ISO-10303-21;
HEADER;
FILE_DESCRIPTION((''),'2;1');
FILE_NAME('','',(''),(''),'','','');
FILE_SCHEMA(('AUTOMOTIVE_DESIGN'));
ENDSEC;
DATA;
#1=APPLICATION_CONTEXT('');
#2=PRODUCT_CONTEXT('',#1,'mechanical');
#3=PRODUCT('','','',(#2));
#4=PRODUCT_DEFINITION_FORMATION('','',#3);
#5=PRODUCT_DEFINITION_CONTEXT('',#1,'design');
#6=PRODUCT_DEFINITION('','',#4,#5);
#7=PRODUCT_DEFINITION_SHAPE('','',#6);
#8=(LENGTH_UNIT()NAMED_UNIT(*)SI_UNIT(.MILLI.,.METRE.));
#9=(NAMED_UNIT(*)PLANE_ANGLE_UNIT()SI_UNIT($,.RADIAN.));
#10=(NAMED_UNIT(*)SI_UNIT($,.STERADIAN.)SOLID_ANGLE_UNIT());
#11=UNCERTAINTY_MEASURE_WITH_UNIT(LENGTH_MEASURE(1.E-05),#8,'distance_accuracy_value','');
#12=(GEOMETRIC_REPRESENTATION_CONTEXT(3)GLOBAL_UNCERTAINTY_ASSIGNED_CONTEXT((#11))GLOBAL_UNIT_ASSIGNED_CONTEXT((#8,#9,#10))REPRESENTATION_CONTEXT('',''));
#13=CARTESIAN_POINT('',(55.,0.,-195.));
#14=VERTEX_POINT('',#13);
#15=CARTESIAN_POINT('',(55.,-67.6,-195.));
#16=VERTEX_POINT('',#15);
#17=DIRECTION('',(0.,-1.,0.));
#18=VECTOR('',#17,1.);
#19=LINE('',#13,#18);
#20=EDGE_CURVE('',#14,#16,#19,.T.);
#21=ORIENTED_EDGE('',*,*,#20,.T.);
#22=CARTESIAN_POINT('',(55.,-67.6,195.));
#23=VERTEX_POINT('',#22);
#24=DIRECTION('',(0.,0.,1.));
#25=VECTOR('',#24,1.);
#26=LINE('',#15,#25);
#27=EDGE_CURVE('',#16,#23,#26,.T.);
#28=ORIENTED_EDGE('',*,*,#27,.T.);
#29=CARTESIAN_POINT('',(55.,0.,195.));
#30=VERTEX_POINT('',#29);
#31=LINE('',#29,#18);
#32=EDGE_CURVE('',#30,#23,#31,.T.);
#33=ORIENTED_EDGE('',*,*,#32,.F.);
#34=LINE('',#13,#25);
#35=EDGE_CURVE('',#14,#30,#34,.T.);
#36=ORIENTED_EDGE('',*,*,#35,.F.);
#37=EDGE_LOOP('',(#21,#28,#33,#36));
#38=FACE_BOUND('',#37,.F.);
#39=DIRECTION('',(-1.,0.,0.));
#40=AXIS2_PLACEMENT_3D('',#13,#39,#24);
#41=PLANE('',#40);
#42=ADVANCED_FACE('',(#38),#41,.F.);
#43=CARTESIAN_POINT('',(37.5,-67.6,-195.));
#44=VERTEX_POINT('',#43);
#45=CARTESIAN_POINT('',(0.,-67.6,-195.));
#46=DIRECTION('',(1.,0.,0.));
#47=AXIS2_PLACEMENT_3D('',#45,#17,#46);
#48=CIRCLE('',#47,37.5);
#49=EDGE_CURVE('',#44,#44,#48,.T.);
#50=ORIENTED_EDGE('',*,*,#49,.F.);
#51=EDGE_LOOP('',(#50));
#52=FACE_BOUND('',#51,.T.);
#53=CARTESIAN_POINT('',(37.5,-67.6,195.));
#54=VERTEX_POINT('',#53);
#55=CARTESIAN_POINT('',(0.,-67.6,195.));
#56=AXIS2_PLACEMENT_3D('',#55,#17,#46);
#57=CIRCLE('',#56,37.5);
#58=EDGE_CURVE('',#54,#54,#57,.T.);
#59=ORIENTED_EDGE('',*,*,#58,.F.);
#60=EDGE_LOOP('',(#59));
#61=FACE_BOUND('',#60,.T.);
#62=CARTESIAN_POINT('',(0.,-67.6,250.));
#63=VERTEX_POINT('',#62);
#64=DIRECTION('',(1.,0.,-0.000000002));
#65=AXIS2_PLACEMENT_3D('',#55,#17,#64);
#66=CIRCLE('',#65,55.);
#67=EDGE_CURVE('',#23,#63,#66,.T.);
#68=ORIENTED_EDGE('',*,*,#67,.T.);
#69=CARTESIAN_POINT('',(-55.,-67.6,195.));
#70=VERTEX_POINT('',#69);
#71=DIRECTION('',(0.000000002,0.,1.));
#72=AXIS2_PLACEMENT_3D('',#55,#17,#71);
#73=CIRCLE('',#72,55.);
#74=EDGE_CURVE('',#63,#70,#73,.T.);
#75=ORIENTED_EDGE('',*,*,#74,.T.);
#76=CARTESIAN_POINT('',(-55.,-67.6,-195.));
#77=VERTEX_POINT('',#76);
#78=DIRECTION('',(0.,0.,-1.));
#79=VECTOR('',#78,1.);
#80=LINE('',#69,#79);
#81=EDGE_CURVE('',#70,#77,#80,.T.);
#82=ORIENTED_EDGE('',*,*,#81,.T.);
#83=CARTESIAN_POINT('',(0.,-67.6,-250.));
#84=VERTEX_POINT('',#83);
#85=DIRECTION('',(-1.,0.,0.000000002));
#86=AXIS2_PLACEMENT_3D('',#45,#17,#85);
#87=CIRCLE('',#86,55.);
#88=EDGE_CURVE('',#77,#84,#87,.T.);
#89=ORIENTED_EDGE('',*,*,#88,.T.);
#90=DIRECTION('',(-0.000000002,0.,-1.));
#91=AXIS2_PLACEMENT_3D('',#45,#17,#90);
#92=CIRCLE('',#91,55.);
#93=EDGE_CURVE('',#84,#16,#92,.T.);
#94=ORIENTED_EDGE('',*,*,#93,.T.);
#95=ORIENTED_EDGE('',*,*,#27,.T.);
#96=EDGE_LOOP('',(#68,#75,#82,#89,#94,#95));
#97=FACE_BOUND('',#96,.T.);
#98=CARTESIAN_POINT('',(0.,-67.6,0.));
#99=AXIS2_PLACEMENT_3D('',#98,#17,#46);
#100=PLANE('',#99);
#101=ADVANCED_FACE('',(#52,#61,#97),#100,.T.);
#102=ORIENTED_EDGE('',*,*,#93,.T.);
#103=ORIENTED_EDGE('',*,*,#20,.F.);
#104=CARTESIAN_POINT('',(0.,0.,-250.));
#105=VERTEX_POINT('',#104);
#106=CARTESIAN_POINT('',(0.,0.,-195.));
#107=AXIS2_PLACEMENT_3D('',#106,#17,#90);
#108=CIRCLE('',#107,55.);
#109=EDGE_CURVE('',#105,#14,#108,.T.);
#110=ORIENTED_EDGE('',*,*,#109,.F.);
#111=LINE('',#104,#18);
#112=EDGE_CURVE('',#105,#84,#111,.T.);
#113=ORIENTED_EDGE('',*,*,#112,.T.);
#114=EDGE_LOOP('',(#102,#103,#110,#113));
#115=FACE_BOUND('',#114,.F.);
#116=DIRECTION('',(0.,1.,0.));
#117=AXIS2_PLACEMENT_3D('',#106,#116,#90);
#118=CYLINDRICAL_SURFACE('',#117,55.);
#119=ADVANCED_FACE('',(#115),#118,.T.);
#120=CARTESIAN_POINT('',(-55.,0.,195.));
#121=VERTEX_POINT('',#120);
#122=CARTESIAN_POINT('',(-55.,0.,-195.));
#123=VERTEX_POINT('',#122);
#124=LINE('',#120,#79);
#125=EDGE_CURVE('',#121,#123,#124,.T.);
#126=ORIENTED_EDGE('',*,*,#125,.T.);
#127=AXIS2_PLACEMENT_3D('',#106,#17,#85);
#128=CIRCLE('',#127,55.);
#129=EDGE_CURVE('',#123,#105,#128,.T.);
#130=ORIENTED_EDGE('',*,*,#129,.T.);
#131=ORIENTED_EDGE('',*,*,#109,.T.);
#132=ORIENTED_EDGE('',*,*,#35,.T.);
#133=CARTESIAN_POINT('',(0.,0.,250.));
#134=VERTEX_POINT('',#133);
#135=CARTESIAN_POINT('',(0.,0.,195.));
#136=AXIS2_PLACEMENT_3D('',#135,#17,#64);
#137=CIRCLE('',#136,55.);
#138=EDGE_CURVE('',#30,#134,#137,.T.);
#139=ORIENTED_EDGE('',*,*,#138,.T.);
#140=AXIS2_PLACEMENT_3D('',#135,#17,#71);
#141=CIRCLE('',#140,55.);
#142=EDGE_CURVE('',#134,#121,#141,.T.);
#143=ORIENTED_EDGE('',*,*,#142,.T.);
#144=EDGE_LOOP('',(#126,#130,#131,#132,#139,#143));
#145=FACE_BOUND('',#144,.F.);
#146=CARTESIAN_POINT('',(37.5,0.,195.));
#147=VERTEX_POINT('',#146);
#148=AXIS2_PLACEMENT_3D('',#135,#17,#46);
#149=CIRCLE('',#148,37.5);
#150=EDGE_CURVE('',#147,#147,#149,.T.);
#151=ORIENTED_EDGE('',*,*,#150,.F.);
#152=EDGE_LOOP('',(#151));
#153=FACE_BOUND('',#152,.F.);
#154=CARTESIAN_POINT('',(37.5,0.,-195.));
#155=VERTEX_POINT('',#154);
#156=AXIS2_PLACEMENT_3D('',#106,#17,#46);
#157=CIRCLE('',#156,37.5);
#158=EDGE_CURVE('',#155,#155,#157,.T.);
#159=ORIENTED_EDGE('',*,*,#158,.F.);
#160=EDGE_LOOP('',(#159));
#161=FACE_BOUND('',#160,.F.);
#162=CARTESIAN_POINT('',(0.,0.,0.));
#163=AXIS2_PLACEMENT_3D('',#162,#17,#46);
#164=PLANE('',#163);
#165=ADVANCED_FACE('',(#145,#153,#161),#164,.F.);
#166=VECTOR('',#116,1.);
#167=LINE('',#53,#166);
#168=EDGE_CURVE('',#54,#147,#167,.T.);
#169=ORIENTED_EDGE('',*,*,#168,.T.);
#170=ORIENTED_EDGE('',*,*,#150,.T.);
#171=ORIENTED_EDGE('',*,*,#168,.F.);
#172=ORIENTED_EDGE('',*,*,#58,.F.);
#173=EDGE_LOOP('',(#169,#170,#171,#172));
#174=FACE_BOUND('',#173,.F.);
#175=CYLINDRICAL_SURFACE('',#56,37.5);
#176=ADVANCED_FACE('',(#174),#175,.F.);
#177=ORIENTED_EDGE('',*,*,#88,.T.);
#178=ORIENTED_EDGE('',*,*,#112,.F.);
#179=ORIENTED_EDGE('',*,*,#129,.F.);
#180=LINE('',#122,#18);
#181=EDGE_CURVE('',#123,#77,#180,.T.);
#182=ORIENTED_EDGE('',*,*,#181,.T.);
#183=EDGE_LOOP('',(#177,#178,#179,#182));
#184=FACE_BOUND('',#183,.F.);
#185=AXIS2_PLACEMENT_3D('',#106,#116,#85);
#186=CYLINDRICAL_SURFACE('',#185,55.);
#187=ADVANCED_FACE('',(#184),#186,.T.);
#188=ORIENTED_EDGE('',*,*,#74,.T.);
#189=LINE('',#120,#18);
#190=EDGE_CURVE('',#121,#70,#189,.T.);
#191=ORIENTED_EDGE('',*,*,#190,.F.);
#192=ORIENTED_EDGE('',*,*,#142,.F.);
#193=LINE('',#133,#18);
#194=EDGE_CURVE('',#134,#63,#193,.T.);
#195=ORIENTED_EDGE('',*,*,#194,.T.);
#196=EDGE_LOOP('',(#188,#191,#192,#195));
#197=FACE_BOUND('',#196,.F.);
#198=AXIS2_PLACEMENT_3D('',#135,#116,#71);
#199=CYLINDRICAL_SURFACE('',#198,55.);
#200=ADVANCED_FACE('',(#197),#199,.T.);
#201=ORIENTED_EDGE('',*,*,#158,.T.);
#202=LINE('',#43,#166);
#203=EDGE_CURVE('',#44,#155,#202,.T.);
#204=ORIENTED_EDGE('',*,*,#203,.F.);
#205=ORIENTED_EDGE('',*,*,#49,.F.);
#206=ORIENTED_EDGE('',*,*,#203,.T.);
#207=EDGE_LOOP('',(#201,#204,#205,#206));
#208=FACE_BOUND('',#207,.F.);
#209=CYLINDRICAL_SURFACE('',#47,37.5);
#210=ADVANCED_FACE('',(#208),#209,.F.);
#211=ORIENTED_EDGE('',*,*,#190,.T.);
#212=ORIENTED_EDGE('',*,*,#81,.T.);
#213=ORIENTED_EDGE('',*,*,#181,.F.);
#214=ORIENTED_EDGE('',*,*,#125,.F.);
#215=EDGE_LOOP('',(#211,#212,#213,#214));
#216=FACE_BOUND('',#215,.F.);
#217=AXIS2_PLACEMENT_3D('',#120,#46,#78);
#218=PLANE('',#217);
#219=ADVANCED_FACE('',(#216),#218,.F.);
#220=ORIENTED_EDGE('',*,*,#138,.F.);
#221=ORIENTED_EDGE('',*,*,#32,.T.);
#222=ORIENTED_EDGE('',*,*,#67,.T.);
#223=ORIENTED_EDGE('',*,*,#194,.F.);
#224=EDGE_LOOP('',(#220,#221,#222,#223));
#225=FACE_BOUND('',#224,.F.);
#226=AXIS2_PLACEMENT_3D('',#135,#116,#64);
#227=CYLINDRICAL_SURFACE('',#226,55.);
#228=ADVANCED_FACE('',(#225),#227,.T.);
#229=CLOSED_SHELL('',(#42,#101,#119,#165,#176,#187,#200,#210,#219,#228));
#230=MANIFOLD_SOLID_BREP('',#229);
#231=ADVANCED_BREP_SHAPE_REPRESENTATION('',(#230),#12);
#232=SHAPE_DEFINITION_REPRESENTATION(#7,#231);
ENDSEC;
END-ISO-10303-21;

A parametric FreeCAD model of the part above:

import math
import FreeCAD as App
import Part
import Sketcher

V = App.Vector
Q = App.Units.Quantity

doc = App.newDocument("Part")
body = doc.addObject("PartDesign::Body", "Body")

# Sketch on XZ plane
sketch1 = doc.addObject("Sketcher::SketchObject", "Sketch")
body.addObject(sketch1)
sketch1.AttachmentSupport = (doc.XZ_Plane, [""])
sketch1.MapMode = "FlatFace"
sketch1.addGeometry([
    Part.LineSegment(V(55, -195, 0), V(55, 195, 0)),  # 0
    Part.ArcOfCircle(Part.Circle(V(0, 195, 0), V(0, 0, 1), 55), math.radians(0), math.radians(90)),  # 1
    Part.ArcOfCircle(Part.Circle(V(0, 195, 0), V(0, 0, 1), 55), math.radians(90), math.radians(180)),  # 2
    Part.LineSegment(V(-55, 195, 0), V(-55, -195, 0)),  # 3
    Part.ArcOfCircle(Part.Circle(V(0, -195, 0), V(0, 0, 1), 55), math.radians(180), math.radians(270)),  # 4
    Part.ArcOfCircle(Part.Circle(V(0, -195, 0), V(0, 0, 1), 55), math.radians(-90), math.radians(0)),  # 5
], False)
sketch1.addConstraint([
    Sketcher.Constraint("Tangent", 0, 2, 1, 1),
    Sketcher.Constraint("Tangent", 1, 2, 2, 1),
    Sketcher.Constraint("Tangent", 2, 2, 3, 1),
    Sketcher.Constraint("Tangent", 3, 2, 4, 1),
    Sketcher.Constraint("Tangent", 4, 2, 5, 1),
    Sketcher.Constraint("Tangent", 5, 2, 0, 1),
    Sketcher.Constraint("Vertical", 0),
    Sketcher.Constraint("Vertical", 3),
    Sketcher.Constraint("Equal", 1, 2),
    Sketcher.Constraint("Equal", 2, 4),
    Sketcher.Constraint("Symmetric", 1, 3, 4, 3, -1, 1),
    Sketcher.Constraint("PointOnObject", 1, 2, -2),
    Sketcher.Constraint("PointOnObject", 4, 2, -2),
    Sketcher.Constraint("Radius", 1, Q("55 mm")),
    Sketcher.Constraint("DistanceY", 0, 1, 0, 2, Q("390 mm")),
])
pad1 = doc.addObject("PartDesign::Pad", "Pad")
body.addObject(pad1)
pad1.Profile = sketch1
pad1.Length = 67.6

# Sketch on XZ plane
sketch2 = doc.addObject("Sketcher::SketchObject", "Sketch001")
body.addObject(sketch2)
sketch2.AttachmentSupport = (doc.XZ_Plane, [""])
sketch2.MapMode = "FlatFace"
sketch2.AttachmentOffset = App.Placement(V(0, 0, 67.6), App.Rotation())
sketch2.addGeometry([
    Part.Circle(V(0, 195, 0), V(0, 0, 1), 38),
    Part.Circle(V(0, -195, 0), V(0, 0, 1), 38),
], False)
sketch2.addConstraint([
    Sketcher.Constraint("Equal", 0, 1),
    Sketcher.Constraint("Symmetric", 0, 3, 1, 3, -1, 1),
    Sketcher.Constraint("PointOnObject", 0, 3, -2),
    Sketcher.Constraint("Diameter", 0, Q("75 mm")),
    Sketcher.Constraint("DistanceY", -1, 1, 0, 3, Q("195 mm")),
])
pocket1 = doc.addObject("PartDesign::Pocket", "Pocket")
body.addObject(pocket1)
pocket1.Profile = sketch2
pocket1.Type = "ThroughAll"

doc.recompute()
